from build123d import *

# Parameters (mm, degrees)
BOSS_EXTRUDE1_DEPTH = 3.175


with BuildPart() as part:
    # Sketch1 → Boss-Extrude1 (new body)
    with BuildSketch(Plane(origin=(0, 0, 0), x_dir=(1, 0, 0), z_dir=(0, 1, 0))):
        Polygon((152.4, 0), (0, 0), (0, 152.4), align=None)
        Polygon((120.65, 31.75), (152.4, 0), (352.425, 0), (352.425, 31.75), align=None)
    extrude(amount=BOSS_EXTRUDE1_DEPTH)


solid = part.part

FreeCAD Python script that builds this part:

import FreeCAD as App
import Part
import Sketcher
from FreeCAD import Vector
Q = App.Units.Quantity


def add_polygon(sketch, points):
    """Adds a closed chain of lines whose ends are joined by coincident constraints."""
    first, n = sketch.GeometryCount, len(points)
    for a, b in zip(points, points[1:] + points[:1]):
        sketch.addGeometry(Part.LineSegment(App.Vector(*a, 0), App.Vector(*b, 0)), False)
    for i in range(n):
        sketch.addConstraint(Sketcher.Constraint("Coincident", first + i, 2, first + (i + 1) % n, 1))

doc = App.newDocument("Part")
body = doc.addObject("PartDesign::Body", "Body")

sketch1 = body.newObject("Sketcher::SketchObject", "Sketch")
sketch1.AttachmentSupport = (doc.getObject("XZ_Plane"), [""])
sketch1.MapMode = "FlatFace"
add_polygon(sketch1, [(0, 0), (352.425, 0), (352.425, -31.75), (120.65, -31.75), (0, -152.4)])
sketch1.addConstraint([
    Sketcher.Constraint("Horizontal", 0),
    Sketcher.Constraint("Vertical", 1),
    Sketcher.Constraint("Horizontal", 2),
    Sketcher.Constraint("Vertical", 4),
    Sketcher.Constraint("Coincident", 4, 2, -1, 1),
    Sketcher.Constraint("DistanceY", 4, 1, 4, 2, Q("6 in")),
    Sketcher.Constraint("Angle", 3, Q("-135 deg")),
    Sketcher.Constraint("DistanceY", 1, 2, 1, 1, Q("1.25 in")),
    Sketcher.Constraint("DistanceX", 0, 1, 0, 2, Q("13.875 in")),
])
pad1 = body.newObject("PartDesign::Pad", "Pad")
pad1.Profile = sketch1
pad1.Length = Q("0.125 in")
pad1.Reversed = True

doc.recompute()
